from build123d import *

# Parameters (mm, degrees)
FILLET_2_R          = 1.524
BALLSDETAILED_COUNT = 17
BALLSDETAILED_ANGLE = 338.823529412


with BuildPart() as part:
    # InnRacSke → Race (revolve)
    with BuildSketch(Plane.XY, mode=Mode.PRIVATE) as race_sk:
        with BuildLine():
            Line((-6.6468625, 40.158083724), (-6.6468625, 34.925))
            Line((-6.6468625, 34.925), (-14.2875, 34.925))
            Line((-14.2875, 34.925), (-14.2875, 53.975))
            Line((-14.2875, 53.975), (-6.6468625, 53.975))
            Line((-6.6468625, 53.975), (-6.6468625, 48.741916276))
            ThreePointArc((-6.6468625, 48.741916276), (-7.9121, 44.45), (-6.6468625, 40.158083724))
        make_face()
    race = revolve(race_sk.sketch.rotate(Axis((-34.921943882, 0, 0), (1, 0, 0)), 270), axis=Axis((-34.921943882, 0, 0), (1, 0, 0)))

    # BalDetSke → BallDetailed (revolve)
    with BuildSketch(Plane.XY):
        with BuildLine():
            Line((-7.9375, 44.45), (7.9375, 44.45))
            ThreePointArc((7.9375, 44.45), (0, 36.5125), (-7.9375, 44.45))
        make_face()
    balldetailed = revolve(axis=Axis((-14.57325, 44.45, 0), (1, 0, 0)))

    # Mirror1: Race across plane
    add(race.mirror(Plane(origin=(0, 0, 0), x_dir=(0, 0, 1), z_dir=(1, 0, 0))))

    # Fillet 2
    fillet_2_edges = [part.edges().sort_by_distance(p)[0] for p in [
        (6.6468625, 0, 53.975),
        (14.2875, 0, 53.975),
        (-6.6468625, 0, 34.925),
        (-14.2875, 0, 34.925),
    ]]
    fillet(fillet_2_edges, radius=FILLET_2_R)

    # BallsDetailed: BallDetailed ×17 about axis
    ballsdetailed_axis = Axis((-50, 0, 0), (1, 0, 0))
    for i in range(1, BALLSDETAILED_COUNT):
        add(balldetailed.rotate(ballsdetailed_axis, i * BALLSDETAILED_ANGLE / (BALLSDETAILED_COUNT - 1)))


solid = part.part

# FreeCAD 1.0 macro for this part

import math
import FreeCAD as App
import Part
import Sketcher
from FreeCAD import Vector
Q = App.Units.Quantity


def edges_at(feature, points):
    """Names of the edges that pass closest to the given points."""
    edges = feature.Shape.Edges
    near = lambda p: min(range(len(edges)), key=lambda i: edges[i].distToShape(Part.Vertex(*p))[0])
    return sorted({f"Edge{near(p) + 1}" for p in points})

doc = App.newDocument("Part")
body = doc.addObject("PartDesign::Body", "Body")

# Sketch on XY plane
sketch1 = body.newObject("Sketcher::SketchObject", "Sketch")
sketch1.AttachmentSupport = (doc.getObject("XY_Plane"), [""])
sketch1.MapMode = "FlatFace"
sketch1.addGeometry(Part.LineSegment(Vector(-7, 35, 0), Vector(-7, 40, 0)), False)
sketch1.addGeometry(Part.ArcOfCircle(Part.Circle(Vector(0, 44, 0), Vector(0, 0, 1), 8), math.radians(147), math.radians(213)), False)
sketch1.addGeometry(Part.LineSegment(Vector(-7, 49, 0), Vector(-7, 54, 0)), False)
sketch1.addGeometry(Part.LineSegment(Vector(-7, 54, 0), Vector(-14, 54, 0)), False)
sketch1.addGeometry(Part.LineSegment(Vector(-14, 54, 0), Vector(-14, 35, 0)), False)
sketch1.addGeometry(Part.LineSegment(Vector(-14, 35, 0), Vector(-7, 35, 0)), False)
sketch1.addConstraint(Sketcher.Constraint("Coincident", 0, 2, 1, 2))
sketch1.addConstraint(Sketcher.Constraint("Coincident", 1, 1, 2, 1))
sketch1.addConstraint(Sketcher.Constraint("Coincident", 2, 2, 3, 1))
sketch1.addConstraint(Sketcher.Constraint("Coincident", 3, 2, 4, 1))
sketch1.addConstraint(Sketcher.Constraint("Coincident", 4, 2, 5, 1))
sketch1.addConstraint(Sketcher.Constraint("Coincident", 5, 2, 0, 1))
sketch1.addConstraint(Sketcher.Constraint("Vertical", 0))
sketch1.addConstraint(Sketcher.Constraint("Vertical", 2))
sketch1.addConstraint(Sketcher.Constraint("Horizontal", 3))
sketch1.addConstraint(Sketcher.Constraint("Vertical", 4))
sketch1.addConstraint(Sketcher.Constraint("Horizontal", 5))
sketch1.addConstraint(Sketcher.Constraint("PointOnObject", 1, 3, -2))
sketch1.addConstraint(Sketcher.Constraint("Vertical", 0, 2, 1, 1))
sketch1.addConstraint(Sketcher.Constraint("Equal", 0, 2))
sketch1.addConstraint(Sketcher.Constraint("DistanceY", 4, 2, 4, 1, Q("0.75 in")))
sketch1.addConstraint(Sketcher.Constraint("Radius", 1, Q("0.3115 in")))
sketch1.addConstraint(Sketcher.Constraint("DistanceY", -1, 1, 1, 3, Q("1.75 in")))
sketch1.addConstraint(Sketcher.Constraint("DistanceX", 3, 2, -1, 1, Q("0.5625 in")))
sketch1.addConstraint(Sketcher.Constraint("DistanceX", 3, 2, 3, 1, Q("7.640637 mm")))
revolution = body.newObject("PartDesign::Revolution", "Revolution")
revolution.Profile = sketch1
revolution.ReferenceAxis = (sketch1, ["H_Axis"])
revolution.Angle = 360

# Sketch on XY plane
sketch2 = body.newObject("Sketcher::SketchObject", "Sketch001")
sketch2.AttachmentSupport = (doc.getObject("XY_Plane"), [""])
sketch2.MapMode = "FlatFace"
sketch2.addGeometry(Part.LineSegment(Vector(8, 44, 0), Vector(-8, 44, 0)), False)
sketch2.addGeometry(Part.ArcOfCircle(Part.Circle(Vector(0, 44, 0), Vector(0, 0, 1), 8), math.radians(180), math.radians(360)), False)
sketch2.addGeometry(Part.LineSegment(Vector(-8, 44, 0), Vector(8, 44, 0)), True)  # axis
sketch2.addConstraint(Sketcher.Constraint("Coincident", 0, 1, 1, 2))
sketch2.addConstraint(Sketcher.Constraint("Coincident", 1, 1, 0, 2))
sketch2.addConstraint(Sketcher.Constraint("Horizontal", 0))
sketch2.addConstraint(Sketcher.Constraint("Horizontal", 2))
sketch2.addConstraint(Sketcher.Constraint("Coincident", 2, 1, 1, 1))
sketch2.addConstraint(Sketcher.Constraint("PointOnObject", 1, 3, -2))
sketch2.addConstraint(Sketcher.Constraint("Horizontal", 1, 3, 0, 1))
sketch2.addConstraint(Sketcher.Constraint("Equal", 0, 2))
sketch2.addConstraint(Sketcher.Constraint("Radius", 1, Q("0.3125 in")))
sketch2.addConstraint(Sketcher.Constraint("DistanceY", -1, 1, 1, 3, Q("1.75 in")))
revolution2 = body.newObject("PartDesign::Revolution", "Revolution001")
revolution2.Profile = sketch2
revolution2.ReferenceAxis = (sketch2, ["Axis0"])
revolution2.Angle = 360
doc.recompute()

mirrored = body.newObject("PartDesign::Mirrored", "Mirrored")
mirrored.Originals = [revolution]
mirrored.MirrorPlane = (doc.getObject("YZ_Plane"), [""])
body.Tip = mirrored
doc.recompute()

fillet = body.newObject("PartDesign::Fillet", "Fillet")
fillet.Base = (mirrored, edges_at(mirrored, [
    (6.647, 0, 53.975),
    (14.287, 0, 53.975),
    (-6.647, 0, 34.925),
    (-14.287, 0, 34.925),
]))
fillet.Radius = Q("0.06 in")
doc.recompute()

polarpattern = body.newObject("PartDesign::PolarPattern", "PolarPattern")
polarpattern.Originals = [revolution2]
polarpattern.Axis = (doc.getObject("X_Axis"), [""])
polarpattern.Angle = 360
polarpattern.Occurrences = 17
body.Tip = polarpattern

doc.recompute()
